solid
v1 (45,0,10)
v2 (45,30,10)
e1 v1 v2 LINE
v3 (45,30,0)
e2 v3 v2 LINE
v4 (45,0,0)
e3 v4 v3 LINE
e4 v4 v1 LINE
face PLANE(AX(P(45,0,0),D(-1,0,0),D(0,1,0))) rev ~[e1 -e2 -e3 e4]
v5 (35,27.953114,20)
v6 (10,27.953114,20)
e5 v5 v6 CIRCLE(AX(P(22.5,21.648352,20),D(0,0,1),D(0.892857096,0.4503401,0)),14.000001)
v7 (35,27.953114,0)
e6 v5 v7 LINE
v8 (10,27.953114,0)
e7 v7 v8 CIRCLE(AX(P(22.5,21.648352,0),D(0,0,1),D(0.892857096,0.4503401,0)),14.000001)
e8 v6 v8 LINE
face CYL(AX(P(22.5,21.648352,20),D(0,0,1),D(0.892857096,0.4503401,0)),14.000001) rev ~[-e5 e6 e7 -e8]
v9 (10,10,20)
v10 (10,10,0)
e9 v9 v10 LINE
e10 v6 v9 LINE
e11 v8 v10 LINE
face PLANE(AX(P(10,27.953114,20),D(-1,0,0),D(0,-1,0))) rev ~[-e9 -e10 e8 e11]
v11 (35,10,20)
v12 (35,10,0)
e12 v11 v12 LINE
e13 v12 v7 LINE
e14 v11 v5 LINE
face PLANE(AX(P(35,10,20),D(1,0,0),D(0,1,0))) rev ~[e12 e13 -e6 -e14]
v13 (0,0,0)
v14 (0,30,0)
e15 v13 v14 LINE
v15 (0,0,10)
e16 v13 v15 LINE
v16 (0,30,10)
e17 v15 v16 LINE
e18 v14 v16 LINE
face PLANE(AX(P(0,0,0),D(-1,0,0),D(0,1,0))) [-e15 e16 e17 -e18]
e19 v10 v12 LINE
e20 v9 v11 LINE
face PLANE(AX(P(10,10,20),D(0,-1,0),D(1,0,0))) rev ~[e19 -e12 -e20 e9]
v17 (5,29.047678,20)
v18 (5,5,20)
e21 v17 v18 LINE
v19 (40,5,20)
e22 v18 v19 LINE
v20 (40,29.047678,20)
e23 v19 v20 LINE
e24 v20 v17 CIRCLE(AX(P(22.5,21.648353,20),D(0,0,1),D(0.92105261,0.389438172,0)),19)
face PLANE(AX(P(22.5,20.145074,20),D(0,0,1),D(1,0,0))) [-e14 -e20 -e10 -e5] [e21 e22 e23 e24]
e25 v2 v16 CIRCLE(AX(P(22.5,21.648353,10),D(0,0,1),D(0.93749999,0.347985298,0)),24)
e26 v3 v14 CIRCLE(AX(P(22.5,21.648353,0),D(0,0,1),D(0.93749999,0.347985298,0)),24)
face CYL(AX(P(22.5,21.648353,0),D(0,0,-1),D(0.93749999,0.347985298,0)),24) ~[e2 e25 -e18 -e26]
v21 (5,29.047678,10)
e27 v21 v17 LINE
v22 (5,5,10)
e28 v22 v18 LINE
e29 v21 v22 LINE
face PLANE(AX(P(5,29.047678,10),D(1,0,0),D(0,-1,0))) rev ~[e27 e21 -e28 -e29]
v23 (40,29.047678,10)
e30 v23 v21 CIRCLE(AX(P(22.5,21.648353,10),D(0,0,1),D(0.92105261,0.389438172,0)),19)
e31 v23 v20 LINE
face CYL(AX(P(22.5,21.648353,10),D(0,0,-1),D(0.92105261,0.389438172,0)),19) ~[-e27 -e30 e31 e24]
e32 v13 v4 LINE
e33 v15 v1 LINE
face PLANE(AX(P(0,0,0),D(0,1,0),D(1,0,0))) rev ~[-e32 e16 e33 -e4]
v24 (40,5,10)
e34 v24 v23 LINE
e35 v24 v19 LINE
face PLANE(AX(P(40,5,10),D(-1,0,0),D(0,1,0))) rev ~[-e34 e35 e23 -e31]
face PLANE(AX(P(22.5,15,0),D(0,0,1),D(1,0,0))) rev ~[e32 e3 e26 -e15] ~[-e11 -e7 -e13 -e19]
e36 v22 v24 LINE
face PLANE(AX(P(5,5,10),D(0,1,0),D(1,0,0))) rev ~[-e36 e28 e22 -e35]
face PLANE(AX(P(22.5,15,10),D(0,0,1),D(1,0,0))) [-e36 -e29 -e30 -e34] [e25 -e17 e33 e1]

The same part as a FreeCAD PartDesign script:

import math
import FreeCAD as App
import Part
import Sketcher
from FreeCAD import Vector

doc = App.newDocument("Part")
params = doc.addObject("Spreadsheet::Sheet", "Params")
for row, (alias, value) in enumerate([
    ("sketch1_radius", "24 mm"),
    ("sketch1_width", "45 mm"),
    ("sketch1_height", "30 mm"),
    ("pad1_length", "10 mm"),
    ("sketch2_radius", "19 mm"),
    ("sketch2_width", "35 mm"),
    ("pad2_length", "10 mm"),
    ("sketch3_radius", "14.000001 mm"),
    ("sketch3_width", "25 mm"),
    ("pocket1_length", "20 mm"),
], start=1):
    params.set(f"A{row}", alias)
    params.set(f"B{row}", "=" + value)
    params.setAlias(f"B{row}", alias)

body = doc.addObject("PartDesign::Body", "Body")

# Sketch on XY plane
sketch1 = body.newObject("Sketcher::SketchObject", "Sketch")
sketch1.AttachmentSupport = (doc.getObject("XY_Plane"), [""])
sketch1.MapMode = "FlatFace"
sketch1.addGeometry(Part.LineSegment(Vector(0, 30, 0), Vector(0, 0, 0)), False)
sketch1.addGeometry(Part.LineSegment(Vector(0, 0, 0), Vector(45, 0, 0)), False)
sketch1.addGeometry(Part.LineSegment(Vector(45, 0, 0), Vector(45, 30, 0)), False)
sketch1.addGeometry(Part.ArcOfCircle(Part.Circle(Vector(22, 22, 0), Vector(0, 0, 1), 24), math.radians(20), math.radians(160)), False)
sketch1.addConstraint(Sketcher.Constraint("Coincident", 0, 2, 1, 1))
sketch1.addConstraint(Sketcher.Constraint("Coincident", 1, 2, 2, 1))
sketch1.addConstraint(Sketcher.Constraint("Coincident", 2, 2, 3, 1))
sketch1.addConstraint(Sketcher.Constraint("Coincident", 3, 2, 0, 1))
sketch1.addConstraint(Sketcher.Constraint("Vertical", 0))
sketch1.addConstraint(Sketcher.Constraint("Horizontal", 1))
sketch1.addConstraint(Sketcher.Constraint("Vertical", 2))
sketch1.addConstraint(Sketcher.Constraint("Coincident", 0, 2, -1, 1))
sketch1.addConstraint(Sketcher.Constraint("Horizontal", 2, 2, 3, 2))
sketch1.addConstraint(Sketcher.Constraint("Radius", 3, 24.0))
sketch1.addConstraint(Sketcher.Constraint("DistanceX", 1, 1, 1, 2, 45.0))
sketch1.addConstraint(Sketcher.Constraint("DistanceY", 0, 2, 0, 1, 30.0))
sketch1.setExpression("Constraints[9]", "Params.sketch1_radius")
sketch1.setExpression("Constraints[10]", "Params.sketch1_width")
sketch1.setExpression("Constraints[11]", "Params.sketch1_height")
pad1 = body.newObject("PartDesign::Pad", "Pad")
pad1.Profile = sketch1
pad1.setExpression("Length", "Params.pad1_length")

# Sketch on XY plane
sketch2 = body.newObject("Sketcher::SketchObject", "Sketch001")
sketch2.AttachmentSupport = (doc.getObject("XY_Plane"), [""])
sketch2.MapMode = "FlatFace"
sketch2.AttachmentOffset = App.Placement(Vector(0, 0, 10), App.Rotation())
sketch2.addGeometry(Part.LineSegment(Vector(5, 5, 0), Vector(40, 5, 0)), False)
sketch2.addGeometry(Part.LineSegment(Vector(40, 5, 0), Vector(40, 29, 0)), False)
sketch2.addGeometry(Part.ArcOfCircle(Part.Circle(Vector(22, 22, 0), Vector(0, 0, 1), 19), math.radians(23), math.radians(157)), False)
sketch2.addGeometry(Part.LineSegment(Vector(5, 29, 0), Vector(5, 5, 0)), False)
sketch2.addConstraint(Sketcher.Constraint("Coincident", 0, 2, 1, 1))
sketch2.addConstraint(Sketcher.Constraint("Coincident", 1, 2, 2, 1))
sketch2.addConstraint(Sketcher.Constraint("Coincident", 2, 2, 3, 1))
sketch2.addConstraint(Sketcher.Constraint("Coincident", 3, 2, 0, 1))
sketch2.addConstraint(Sketcher.Constraint("Horizontal", 0))
sketch2.addConstraint(Sketcher.Constraint("Vertical", 1))
sketch2.addConstraint(Sketcher.Constraint("Vertical", 3))
sketch2.addConstraint(Sketcher.Constraint("Horizontal", 1, 2, 2, 2))
sketch2.addConstraint(Sketcher.Constraint("Radius", 2, 19.0))
sketch2.addConstraint(Sketcher.Constraint("DistanceX", 0, 1, 0, 2, 35.0))
sketch2.addConstraint(Sketcher.Constraint("DistanceX", -1, 1, 0, 2, 40.0))
sketch2.addConstraint(Sketcher.Constraint("DistanceY", -1, 1, 0, 2, 5.0))
sketch2.addConstraint(Sketcher.Constraint("DistanceY", 1, 1, 1, 2, 24.047678))
sketch2.setExpression("Constraints[8]", "Params.sketch2_radius")
sketch2.setExpression("Constraints[9]", "Params.sketch2_width")
pad2 = body.newObject("PartDesign::Pad", "Pad001")
pad2.Profile = sketch2
pad2.setExpression("Length", "Params.pad2_length")

# Sketch on XY plane
sketch3 = body.newObject("Sketcher::SketchObject", "Sketch002")
sketch3.AttachmentSupport = (doc.getObject("XY_Plane"), [""])
sketch3.MapMode = "FlatFace"
sketch3.AttachmentOffset = App.Placement(Vector(0, 0, 20), App.Rotation())
sketch3.addGeometry(Part.LineSegment(Vector(10, 28, 0), Vector(10, 10, 0)), False)
sketch3.addGeometry(Part.LineSegment(Vector(10, 10, 0), Vector(35, 10, 0)), False)
sketch3.addGeometry(Part.LineSegment(Vector(35, 10, 0), Vector(35, 28, 0)), False)
sketch3.addGeometry(Part.ArcOfCircle(Part.Circle(Vector(22, 22, 0), Vector(0, 0, 1), 14), math.radians(27), math.radians(153)), False)
sketch3.addConstraint(Sketcher.Constraint("Coincident", 0, 2, 1, 1))
sketch3.addConstraint(Sketcher.Constraint("Coincident", 1, 2, 2, 1))
sketch3.addConstraint(Sketcher.Constraint("Coincident", 2, 2, 3, 1))
sketch3.addConstraint(Sketcher.Constraint("Coincident", 3, 2, 0, 1))
sketch3.addConstraint(Sketcher.Constraint("Vertical", 0))
sketch3.addConstraint(Sketcher.Constraint("Horizontal", 1))
sketch3.addConstraint(Sketcher.Constraint("Vertical", 2))
sketch3.addConstraint(Sketcher.Constraint("Horizontal", 2, 2, 3, 2))
sketch3.addConstraint(Sketcher.Constraint("Radius", 3, 14.000001))
sketch3.addConstraint(Sketcher.Constraint("DistanceX", 1, 1, 1, 2, 25.0))
sketch3.addConstraint(Sketcher.Constraint("DistanceX", -1, 1, 0, 2, 10.0))
sketch3.addConstraint(Sketcher.Constraint("DistanceY", -1, 1, 0, 2, 10.0))
sketch3.addConstraint(Sketcher.Constraint("DistanceY", 0, 2, 0, 1, 17.953114))
sketch3.setExpression("Constraints[8]", "Params.sketch3_radius")
sketch3.setExpression("Constraints[9]", "Params.sketch3_width")
pocket1 = body.newObject("PartDesign::Pocket", "Pocket")
pocket1.Profile = sketch3
pocket1.setExpression("Length", "Params.pocket1_length")

doc.recompute()
